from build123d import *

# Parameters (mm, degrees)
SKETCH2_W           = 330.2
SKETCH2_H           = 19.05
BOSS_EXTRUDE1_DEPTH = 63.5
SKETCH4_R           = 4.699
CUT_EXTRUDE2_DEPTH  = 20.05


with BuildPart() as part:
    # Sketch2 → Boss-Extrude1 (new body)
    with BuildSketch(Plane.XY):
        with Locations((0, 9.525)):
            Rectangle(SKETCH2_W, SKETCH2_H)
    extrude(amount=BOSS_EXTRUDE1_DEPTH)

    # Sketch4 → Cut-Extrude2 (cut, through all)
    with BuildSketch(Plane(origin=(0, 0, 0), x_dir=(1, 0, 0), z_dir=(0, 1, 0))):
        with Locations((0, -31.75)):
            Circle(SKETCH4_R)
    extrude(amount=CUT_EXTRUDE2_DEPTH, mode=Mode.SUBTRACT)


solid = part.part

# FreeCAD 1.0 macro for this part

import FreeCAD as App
import Part
import Sketcher

V = App.Vector
Q = App.Units.Quantity

doc = App.newDocument("Part")
body = doc.addObject("PartDesign::Body", "Body")

# Sketch on XY plane
sketch1 = doc.addObject("Sketcher::SketchObject", "Sketch")
body.addObject(sketch1)
sketch1.AttachmentSupport = (doc.XY_Plane, [""])
sketch1.MapMode = "FlatFace"
sketch1.addGeometry([
    Part.LineSegment(V(-165.1, 19.05, 0), V(-165.1, 0, 0)),
    Part.LineSegment(V(-165.1, 0, 0), V(165.1, 0, 0)),
    Part.LineSegment(V(165.1, 0, 0), V(165.1, 19.05, 0)),
    Part.LineSegment(V(165.1, 19.05, 0), V(-165.1, 19.05, 0)),
], False)
sketch1.addConstraint([
    Sketcher.Constraint("Coincident", 0, 2, 1, 1),
    Sketcher.Constraint("Coincident", 1, 2, 2, 1),
    Sketcher.Constraint("Coincident", 2, 2, 3, 1),
    Sketcher.Constraint("Coincident", 3, 2, 0, 1),
    Sketcher.Constraint("Vertical", 0),
    Sketcher.Constraint("Horizontal", 1),
    Sketcher.Constraint("Vertical", 2),
    Sketcher.Constraint("Horizontal", 3),
    Sketcher.Constraint("Symmetric", 0, 2, 1, 2, -1, 1),
    Sketcher.Constraint("DistanceX", 1, 1, 1, 2, Q("13 in")),
    Sketcher.Constraint("DistanceY", 0, 2, 0, 1, Q("0.75 in")),
])
pad1 = doc.addObject("PartDesign::Pad", "Pad")
body.addObject(pad1)
pad1.Profile = sketch1
pad1.Length = Q("2.5 in")

# Sketch on XZ plane
sketch2 = doc.addObject("Sketcher::SketchObject", "Sketch001")
body.addObject(sketch2)
sketch2.AttachmentSupport = (doc.XZ_Plane, [""])
sketch2.MapMode = "FlatFace"
sketch2.addGeometry(Part.Circle(V(0, 31.75, 0), V(0, 0, 1), 4.699), False)
sketch2.addConstraint([
    Sketcher.Constraint("PointOnObject", 0, 3, -2),
    Sketcher.Constraint("Diameter", 0, Q("0.37 in")),
    Sketcher.Constraint("DistanceY", -1, 1, 0, 3, Q("1.25 in")),
])
pocket1 = doc.addObject("PartDesign::Pocket", "Pocket")
body.addObject(pocket1)
pocket1.Profile = sketch2
pocket1.Type = "ThroughAll"

doc.recompute()
